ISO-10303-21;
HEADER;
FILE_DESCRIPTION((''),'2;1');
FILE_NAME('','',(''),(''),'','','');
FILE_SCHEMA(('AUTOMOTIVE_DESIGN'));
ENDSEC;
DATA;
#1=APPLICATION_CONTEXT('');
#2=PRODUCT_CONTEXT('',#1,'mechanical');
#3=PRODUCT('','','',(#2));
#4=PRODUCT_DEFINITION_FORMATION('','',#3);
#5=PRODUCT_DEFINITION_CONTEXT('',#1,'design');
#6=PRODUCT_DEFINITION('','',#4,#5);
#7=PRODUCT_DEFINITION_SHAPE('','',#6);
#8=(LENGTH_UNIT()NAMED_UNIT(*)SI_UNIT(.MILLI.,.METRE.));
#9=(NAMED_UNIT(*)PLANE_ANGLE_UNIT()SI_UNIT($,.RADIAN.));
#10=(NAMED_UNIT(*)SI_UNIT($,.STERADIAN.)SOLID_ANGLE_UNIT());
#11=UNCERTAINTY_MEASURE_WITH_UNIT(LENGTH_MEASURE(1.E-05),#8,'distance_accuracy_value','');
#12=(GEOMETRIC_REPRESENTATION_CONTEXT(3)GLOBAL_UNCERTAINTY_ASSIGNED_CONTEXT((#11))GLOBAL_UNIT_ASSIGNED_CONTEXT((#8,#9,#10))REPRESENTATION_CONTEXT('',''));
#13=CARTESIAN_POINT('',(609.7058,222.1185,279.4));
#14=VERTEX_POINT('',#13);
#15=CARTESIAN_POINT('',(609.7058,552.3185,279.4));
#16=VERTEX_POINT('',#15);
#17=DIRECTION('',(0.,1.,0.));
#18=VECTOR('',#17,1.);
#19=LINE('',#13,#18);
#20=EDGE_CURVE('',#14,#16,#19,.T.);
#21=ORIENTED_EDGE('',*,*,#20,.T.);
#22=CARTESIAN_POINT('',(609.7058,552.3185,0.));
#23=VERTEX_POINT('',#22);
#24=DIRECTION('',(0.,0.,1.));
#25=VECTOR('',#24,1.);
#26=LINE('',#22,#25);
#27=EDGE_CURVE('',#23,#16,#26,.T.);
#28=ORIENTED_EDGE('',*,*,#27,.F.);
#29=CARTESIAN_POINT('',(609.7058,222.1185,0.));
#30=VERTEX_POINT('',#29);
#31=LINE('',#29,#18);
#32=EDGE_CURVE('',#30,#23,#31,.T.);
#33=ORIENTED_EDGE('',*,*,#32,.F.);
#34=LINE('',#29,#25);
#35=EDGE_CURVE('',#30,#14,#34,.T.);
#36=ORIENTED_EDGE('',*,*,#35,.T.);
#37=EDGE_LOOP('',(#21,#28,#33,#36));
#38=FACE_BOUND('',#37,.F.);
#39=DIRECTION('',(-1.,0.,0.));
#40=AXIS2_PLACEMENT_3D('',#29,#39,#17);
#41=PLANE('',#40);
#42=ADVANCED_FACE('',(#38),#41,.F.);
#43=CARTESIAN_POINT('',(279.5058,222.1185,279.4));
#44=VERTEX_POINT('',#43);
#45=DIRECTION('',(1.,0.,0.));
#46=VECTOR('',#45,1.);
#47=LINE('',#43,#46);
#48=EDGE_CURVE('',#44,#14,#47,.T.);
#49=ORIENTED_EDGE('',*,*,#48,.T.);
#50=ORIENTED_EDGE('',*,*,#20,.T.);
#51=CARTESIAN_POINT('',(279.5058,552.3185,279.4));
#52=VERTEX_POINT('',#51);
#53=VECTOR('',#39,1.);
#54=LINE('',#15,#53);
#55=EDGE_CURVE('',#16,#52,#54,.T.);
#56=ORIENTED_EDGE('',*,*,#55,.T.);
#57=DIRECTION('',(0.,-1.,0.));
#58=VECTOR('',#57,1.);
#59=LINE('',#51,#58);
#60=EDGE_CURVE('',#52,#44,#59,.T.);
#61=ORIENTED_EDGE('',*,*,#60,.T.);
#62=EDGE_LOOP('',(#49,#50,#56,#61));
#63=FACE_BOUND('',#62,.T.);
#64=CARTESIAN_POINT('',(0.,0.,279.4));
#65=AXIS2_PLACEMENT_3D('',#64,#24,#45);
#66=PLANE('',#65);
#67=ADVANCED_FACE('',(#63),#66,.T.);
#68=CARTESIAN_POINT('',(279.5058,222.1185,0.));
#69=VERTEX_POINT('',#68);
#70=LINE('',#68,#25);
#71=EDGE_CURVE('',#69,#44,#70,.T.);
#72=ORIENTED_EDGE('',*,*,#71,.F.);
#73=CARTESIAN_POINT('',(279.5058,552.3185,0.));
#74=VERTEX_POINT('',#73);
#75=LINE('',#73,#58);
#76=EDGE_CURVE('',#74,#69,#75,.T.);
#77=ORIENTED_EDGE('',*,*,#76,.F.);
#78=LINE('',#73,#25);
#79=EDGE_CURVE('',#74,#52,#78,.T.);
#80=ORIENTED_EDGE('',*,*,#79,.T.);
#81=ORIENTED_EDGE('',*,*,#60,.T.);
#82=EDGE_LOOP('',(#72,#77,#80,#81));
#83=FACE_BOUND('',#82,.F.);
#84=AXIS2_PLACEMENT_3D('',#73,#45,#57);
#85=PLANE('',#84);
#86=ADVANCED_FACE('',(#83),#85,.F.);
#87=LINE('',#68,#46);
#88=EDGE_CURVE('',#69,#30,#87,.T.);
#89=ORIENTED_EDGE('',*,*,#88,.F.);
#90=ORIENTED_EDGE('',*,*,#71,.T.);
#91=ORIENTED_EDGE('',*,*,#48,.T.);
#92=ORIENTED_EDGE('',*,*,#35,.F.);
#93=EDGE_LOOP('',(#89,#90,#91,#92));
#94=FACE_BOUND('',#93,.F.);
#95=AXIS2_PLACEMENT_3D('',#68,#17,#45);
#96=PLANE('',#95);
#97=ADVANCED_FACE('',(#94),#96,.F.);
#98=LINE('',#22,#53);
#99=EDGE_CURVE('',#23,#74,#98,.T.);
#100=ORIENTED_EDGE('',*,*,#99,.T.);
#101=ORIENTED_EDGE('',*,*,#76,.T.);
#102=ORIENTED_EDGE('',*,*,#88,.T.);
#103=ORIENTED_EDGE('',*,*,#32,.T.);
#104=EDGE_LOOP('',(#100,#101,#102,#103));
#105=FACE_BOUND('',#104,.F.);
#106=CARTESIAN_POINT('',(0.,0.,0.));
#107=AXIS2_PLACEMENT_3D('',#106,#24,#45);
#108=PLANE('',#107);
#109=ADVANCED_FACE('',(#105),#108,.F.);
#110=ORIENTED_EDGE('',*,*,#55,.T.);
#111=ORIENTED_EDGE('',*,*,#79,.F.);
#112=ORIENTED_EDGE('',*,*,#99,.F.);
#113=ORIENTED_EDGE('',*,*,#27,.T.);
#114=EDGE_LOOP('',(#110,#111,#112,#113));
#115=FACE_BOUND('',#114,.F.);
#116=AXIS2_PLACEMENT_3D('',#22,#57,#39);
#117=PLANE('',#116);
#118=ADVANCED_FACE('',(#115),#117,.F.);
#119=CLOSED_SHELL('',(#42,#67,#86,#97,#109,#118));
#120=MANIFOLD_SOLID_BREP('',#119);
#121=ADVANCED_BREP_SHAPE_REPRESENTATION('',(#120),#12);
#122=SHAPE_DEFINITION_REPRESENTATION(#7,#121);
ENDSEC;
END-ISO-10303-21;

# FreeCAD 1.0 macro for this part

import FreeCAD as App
import Part
import Sketcher

V = App.Vector
Q = App.Units.Quantity


def add_polygon(sketch, points):
    """Adds a closed chain of lines whose ends are joined by coincident constraints."""
    first, n = sketch.GeometryCount, len(points)
    for a, b in zip(points, points[1:] + points[:1]):
        sketch.addGeometry(Part.LineSegment(App.Vector(*a, 0), App.Vector(*b, 0)), False)
    for i in range(n):
        sketch.addConstraint(Sketcher.Constraint("Coincident", first + i, 2, first + (i + 1) % n, 1))

doc = App.newDocument("Part")
body = doc.addObject("PartDesign::Body", "Body")

# Sketch on XY plane
sketch1 = body.newObject("Sketcher::SketchObject", "Sketch")
sketch1.AttachmentSupport = (doc.getObject("XY_Plane"), [""])
sketch1.MapMode = "FlatFace"
add_polygon(sketch1, [(610, 222), (610, 552), (280, 552), (280, 222)])  # lines 0-3
sketch1.addConstraint(Sketcher.Constraint("Vertical", 0))
sketch1.addConstraint(Sketcher.Constraint("Horizontal", 1))
sketch1.addConstraint(Sketcher.Constraint("Vertical", 2))
sketch1.addConstraint(Sketcher.Constraint("Horizontal", 3))
sketch1.addConstraint(Sketcher.Constraint("Equal", 3, 0))
sketch1.addConstraint(Sketcher.Constraint("DistanceX", 1, 2, 1, 1, Q("13 in")))
sketch1.addConstraint(Sketcher.Constraint("DistanceX", -1, 1, 0, 2, 609.7058))
sketch1.addConstraint(Sketcher.Constraint("DistanceY", -1, 1, 0, 2, 552.3185))
pad1 = body.newObject("PartDesign::Pad", "Pad")
pad1.Profile = sketch1
pad1.Length = Q("11 in")

doc.recompute()
